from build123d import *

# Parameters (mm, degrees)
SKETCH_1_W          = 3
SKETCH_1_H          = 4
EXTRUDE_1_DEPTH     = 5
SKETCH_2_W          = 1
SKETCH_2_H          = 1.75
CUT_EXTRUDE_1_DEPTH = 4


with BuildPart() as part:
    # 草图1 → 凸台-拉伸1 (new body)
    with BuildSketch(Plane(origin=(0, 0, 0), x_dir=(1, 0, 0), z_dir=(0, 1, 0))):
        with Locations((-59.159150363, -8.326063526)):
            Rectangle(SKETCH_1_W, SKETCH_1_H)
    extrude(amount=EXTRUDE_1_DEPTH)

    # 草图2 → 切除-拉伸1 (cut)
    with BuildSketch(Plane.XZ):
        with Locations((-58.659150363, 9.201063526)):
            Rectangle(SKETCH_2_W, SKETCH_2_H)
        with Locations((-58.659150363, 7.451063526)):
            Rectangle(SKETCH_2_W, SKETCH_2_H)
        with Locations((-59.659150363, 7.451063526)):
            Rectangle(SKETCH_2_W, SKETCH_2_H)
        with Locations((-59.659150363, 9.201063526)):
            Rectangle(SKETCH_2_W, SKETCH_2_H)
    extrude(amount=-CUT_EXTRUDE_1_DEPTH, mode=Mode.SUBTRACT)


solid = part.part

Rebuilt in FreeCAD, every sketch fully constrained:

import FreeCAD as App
import Part
import Sketcher

V = App.Vector
Q = App.Units.Quantity

doc = App.newDocument("Part")
params = doc.addObject("Spreadsheet::Sheet", "Params")
for row, (alias, value) in enumerate([
    ("sketch1_width", "3 mm"),
    ("sketch1_height", "4 mm"),
    ("pad1_length", "5 mm"),
    ("sketch2_width", "2 mm"),
    ("sketch2_height", "3.5 mm"),
    ("pocket1_length", "4 mm"),
], start=1):
    params.set(f"A{row}", alias)
    params.set(f"B{row}", "=" + value)
    params.setAlias(f"B{row}", alias)

body = doc.addObject("PartDesign::Body", "Body")

# Sketch on XZ plane
sketch1 = body.newObject("Sketcher::SketchObject", "Sketch")
sketch1.AttachmentSupport = (doc.getObject("XZ_Plane"), [""])
sketch1.MapMode = "FlatFace"
sketch1.addGeometry([
    Part.LineSegment(V(-60.7, 6.3, 0), V(-60.7, 10.3, 0)),
    Part.LineSegment(V(-60.7, 10.3, 0), V(-57.7, 10.3, 0)),
    Part.LineSegment(V(-57.7, 10.3, 0), V(-57.7, 6.3, 0)),
    Part.LineSegment(V(-57.7, 6.3, 0), V(-60.7, 6.3, 0)),
], False)
sketch1.addConstraint([
    Sketcher.Constraint("Coincident", 0, 2, 1, 1),
    Sketcher.Constraint("Coincident", 1, 2, 2, 1),
    Sketcher.Constraint("Coincident", 2, 2, 3, 1),
    Sketcher.Constraint("Coincident", 3, 2, 0, 1),
    Sketcher.Constraint("Vertical", 0),
    Sketcher.Constraint("Horizontal", 1),
    Sketcher.Constraint("Vertical", 2),
    Sketcher.Constraint("Horizontal", 3),
    Sketcher.Constraint("DistanceX", 1, 1, 1, 2, Q("3 mm")),
    Sketcher.Constraint("DistanceY", 0, 1, 0, 2, Q("4 mm")),
    Sketcher.Constraint("DistanceX", 0, 2, -1, 1, Q("60.65915 mm")),
    Sketcher.Constraint("DistanceY", -1, 1, 0, 2, Q("10.326064 mm")),
])
sketch1.setExpression("Constraints[8]", "Params.sketch1_width")
sketch1.setExpression("Constraints[9]", "Params.sketch1_height")
pad1 = body.newObject("PartDesign::Pad", "Pad")
pad1.Profile = sketch1
pad1.setExpression("Length", "Params.pad1_length")
pad1.Reversed = True

# Sketch on XZ plane
sketch2 = body.newObject("Sketcher::SketchObject", "Sketch001")
sketch2.AttachmentSupport = (doc.getObject("XZ_Plane"), [""])
sketch2.MapMode = "FlatFace"
sketch2.addGeometry([
    Part.LineSegment(V(-60.2, 6.6, 0), V(-58.2, 6.6, 0)),
    Part.LineSegment(V(-58.2, 6.6, 0), V(-58.2, 10.1, 0)),
    Part.LineSegment(V(-58.2, 10.1, 0), V(-60.2, 10.1, 0)),
    Part.LineSegment(V(-60.2, 10.1, 0), V(-60.2, 6.6, 0)),
], False)
sketch2.addConstraint([
    Sketcher.Constraint("Coincident", 0, 2, 1, 1),
    Sketcher.Constraint("Coincident", 1, 2, 2, 1),
    Sketcher.Constraint("Coincident", 2, 2, 3, 1),
    Sketcher.Constraint("Coincident", 3, 2, 0, 1),
    Sketcher.Constraint("Horizontal", 0),
    Sketcher.Constraint("Vertical", 1),
    Sketcher.Constraint("Horizontal", 2),
    Sketcher.Constraint("Vertical", 3),
    Sketcher.Constraint("DistanceX", 0, 1, 0, 2, Q("2 mm")),
    Sketcher.Constraint("DistanceY", 1, 1, 1, 2, Q("3.5 mm")),
    Sketcher.Constraint("DistanceX", 0, 2, -1, 1, Q("58.15915 mm")),
    Sketcher.Constraint("DistanceY", -1, 1, 0, 2, Q("6.576064 mm")),
])
sketch2.setExpression("Constraints[8]", "Params.sketch2_width")
sketch2.setExpression("Constraints[9]", "Params.sketch2_height")
pocket1 = body.newObject("PartDesign::Pocket", "Pocket")
pocket1.Profile = sketch2
pocket1.setExpression("Length", "Params.pocket1_length")

doc.recompute()
